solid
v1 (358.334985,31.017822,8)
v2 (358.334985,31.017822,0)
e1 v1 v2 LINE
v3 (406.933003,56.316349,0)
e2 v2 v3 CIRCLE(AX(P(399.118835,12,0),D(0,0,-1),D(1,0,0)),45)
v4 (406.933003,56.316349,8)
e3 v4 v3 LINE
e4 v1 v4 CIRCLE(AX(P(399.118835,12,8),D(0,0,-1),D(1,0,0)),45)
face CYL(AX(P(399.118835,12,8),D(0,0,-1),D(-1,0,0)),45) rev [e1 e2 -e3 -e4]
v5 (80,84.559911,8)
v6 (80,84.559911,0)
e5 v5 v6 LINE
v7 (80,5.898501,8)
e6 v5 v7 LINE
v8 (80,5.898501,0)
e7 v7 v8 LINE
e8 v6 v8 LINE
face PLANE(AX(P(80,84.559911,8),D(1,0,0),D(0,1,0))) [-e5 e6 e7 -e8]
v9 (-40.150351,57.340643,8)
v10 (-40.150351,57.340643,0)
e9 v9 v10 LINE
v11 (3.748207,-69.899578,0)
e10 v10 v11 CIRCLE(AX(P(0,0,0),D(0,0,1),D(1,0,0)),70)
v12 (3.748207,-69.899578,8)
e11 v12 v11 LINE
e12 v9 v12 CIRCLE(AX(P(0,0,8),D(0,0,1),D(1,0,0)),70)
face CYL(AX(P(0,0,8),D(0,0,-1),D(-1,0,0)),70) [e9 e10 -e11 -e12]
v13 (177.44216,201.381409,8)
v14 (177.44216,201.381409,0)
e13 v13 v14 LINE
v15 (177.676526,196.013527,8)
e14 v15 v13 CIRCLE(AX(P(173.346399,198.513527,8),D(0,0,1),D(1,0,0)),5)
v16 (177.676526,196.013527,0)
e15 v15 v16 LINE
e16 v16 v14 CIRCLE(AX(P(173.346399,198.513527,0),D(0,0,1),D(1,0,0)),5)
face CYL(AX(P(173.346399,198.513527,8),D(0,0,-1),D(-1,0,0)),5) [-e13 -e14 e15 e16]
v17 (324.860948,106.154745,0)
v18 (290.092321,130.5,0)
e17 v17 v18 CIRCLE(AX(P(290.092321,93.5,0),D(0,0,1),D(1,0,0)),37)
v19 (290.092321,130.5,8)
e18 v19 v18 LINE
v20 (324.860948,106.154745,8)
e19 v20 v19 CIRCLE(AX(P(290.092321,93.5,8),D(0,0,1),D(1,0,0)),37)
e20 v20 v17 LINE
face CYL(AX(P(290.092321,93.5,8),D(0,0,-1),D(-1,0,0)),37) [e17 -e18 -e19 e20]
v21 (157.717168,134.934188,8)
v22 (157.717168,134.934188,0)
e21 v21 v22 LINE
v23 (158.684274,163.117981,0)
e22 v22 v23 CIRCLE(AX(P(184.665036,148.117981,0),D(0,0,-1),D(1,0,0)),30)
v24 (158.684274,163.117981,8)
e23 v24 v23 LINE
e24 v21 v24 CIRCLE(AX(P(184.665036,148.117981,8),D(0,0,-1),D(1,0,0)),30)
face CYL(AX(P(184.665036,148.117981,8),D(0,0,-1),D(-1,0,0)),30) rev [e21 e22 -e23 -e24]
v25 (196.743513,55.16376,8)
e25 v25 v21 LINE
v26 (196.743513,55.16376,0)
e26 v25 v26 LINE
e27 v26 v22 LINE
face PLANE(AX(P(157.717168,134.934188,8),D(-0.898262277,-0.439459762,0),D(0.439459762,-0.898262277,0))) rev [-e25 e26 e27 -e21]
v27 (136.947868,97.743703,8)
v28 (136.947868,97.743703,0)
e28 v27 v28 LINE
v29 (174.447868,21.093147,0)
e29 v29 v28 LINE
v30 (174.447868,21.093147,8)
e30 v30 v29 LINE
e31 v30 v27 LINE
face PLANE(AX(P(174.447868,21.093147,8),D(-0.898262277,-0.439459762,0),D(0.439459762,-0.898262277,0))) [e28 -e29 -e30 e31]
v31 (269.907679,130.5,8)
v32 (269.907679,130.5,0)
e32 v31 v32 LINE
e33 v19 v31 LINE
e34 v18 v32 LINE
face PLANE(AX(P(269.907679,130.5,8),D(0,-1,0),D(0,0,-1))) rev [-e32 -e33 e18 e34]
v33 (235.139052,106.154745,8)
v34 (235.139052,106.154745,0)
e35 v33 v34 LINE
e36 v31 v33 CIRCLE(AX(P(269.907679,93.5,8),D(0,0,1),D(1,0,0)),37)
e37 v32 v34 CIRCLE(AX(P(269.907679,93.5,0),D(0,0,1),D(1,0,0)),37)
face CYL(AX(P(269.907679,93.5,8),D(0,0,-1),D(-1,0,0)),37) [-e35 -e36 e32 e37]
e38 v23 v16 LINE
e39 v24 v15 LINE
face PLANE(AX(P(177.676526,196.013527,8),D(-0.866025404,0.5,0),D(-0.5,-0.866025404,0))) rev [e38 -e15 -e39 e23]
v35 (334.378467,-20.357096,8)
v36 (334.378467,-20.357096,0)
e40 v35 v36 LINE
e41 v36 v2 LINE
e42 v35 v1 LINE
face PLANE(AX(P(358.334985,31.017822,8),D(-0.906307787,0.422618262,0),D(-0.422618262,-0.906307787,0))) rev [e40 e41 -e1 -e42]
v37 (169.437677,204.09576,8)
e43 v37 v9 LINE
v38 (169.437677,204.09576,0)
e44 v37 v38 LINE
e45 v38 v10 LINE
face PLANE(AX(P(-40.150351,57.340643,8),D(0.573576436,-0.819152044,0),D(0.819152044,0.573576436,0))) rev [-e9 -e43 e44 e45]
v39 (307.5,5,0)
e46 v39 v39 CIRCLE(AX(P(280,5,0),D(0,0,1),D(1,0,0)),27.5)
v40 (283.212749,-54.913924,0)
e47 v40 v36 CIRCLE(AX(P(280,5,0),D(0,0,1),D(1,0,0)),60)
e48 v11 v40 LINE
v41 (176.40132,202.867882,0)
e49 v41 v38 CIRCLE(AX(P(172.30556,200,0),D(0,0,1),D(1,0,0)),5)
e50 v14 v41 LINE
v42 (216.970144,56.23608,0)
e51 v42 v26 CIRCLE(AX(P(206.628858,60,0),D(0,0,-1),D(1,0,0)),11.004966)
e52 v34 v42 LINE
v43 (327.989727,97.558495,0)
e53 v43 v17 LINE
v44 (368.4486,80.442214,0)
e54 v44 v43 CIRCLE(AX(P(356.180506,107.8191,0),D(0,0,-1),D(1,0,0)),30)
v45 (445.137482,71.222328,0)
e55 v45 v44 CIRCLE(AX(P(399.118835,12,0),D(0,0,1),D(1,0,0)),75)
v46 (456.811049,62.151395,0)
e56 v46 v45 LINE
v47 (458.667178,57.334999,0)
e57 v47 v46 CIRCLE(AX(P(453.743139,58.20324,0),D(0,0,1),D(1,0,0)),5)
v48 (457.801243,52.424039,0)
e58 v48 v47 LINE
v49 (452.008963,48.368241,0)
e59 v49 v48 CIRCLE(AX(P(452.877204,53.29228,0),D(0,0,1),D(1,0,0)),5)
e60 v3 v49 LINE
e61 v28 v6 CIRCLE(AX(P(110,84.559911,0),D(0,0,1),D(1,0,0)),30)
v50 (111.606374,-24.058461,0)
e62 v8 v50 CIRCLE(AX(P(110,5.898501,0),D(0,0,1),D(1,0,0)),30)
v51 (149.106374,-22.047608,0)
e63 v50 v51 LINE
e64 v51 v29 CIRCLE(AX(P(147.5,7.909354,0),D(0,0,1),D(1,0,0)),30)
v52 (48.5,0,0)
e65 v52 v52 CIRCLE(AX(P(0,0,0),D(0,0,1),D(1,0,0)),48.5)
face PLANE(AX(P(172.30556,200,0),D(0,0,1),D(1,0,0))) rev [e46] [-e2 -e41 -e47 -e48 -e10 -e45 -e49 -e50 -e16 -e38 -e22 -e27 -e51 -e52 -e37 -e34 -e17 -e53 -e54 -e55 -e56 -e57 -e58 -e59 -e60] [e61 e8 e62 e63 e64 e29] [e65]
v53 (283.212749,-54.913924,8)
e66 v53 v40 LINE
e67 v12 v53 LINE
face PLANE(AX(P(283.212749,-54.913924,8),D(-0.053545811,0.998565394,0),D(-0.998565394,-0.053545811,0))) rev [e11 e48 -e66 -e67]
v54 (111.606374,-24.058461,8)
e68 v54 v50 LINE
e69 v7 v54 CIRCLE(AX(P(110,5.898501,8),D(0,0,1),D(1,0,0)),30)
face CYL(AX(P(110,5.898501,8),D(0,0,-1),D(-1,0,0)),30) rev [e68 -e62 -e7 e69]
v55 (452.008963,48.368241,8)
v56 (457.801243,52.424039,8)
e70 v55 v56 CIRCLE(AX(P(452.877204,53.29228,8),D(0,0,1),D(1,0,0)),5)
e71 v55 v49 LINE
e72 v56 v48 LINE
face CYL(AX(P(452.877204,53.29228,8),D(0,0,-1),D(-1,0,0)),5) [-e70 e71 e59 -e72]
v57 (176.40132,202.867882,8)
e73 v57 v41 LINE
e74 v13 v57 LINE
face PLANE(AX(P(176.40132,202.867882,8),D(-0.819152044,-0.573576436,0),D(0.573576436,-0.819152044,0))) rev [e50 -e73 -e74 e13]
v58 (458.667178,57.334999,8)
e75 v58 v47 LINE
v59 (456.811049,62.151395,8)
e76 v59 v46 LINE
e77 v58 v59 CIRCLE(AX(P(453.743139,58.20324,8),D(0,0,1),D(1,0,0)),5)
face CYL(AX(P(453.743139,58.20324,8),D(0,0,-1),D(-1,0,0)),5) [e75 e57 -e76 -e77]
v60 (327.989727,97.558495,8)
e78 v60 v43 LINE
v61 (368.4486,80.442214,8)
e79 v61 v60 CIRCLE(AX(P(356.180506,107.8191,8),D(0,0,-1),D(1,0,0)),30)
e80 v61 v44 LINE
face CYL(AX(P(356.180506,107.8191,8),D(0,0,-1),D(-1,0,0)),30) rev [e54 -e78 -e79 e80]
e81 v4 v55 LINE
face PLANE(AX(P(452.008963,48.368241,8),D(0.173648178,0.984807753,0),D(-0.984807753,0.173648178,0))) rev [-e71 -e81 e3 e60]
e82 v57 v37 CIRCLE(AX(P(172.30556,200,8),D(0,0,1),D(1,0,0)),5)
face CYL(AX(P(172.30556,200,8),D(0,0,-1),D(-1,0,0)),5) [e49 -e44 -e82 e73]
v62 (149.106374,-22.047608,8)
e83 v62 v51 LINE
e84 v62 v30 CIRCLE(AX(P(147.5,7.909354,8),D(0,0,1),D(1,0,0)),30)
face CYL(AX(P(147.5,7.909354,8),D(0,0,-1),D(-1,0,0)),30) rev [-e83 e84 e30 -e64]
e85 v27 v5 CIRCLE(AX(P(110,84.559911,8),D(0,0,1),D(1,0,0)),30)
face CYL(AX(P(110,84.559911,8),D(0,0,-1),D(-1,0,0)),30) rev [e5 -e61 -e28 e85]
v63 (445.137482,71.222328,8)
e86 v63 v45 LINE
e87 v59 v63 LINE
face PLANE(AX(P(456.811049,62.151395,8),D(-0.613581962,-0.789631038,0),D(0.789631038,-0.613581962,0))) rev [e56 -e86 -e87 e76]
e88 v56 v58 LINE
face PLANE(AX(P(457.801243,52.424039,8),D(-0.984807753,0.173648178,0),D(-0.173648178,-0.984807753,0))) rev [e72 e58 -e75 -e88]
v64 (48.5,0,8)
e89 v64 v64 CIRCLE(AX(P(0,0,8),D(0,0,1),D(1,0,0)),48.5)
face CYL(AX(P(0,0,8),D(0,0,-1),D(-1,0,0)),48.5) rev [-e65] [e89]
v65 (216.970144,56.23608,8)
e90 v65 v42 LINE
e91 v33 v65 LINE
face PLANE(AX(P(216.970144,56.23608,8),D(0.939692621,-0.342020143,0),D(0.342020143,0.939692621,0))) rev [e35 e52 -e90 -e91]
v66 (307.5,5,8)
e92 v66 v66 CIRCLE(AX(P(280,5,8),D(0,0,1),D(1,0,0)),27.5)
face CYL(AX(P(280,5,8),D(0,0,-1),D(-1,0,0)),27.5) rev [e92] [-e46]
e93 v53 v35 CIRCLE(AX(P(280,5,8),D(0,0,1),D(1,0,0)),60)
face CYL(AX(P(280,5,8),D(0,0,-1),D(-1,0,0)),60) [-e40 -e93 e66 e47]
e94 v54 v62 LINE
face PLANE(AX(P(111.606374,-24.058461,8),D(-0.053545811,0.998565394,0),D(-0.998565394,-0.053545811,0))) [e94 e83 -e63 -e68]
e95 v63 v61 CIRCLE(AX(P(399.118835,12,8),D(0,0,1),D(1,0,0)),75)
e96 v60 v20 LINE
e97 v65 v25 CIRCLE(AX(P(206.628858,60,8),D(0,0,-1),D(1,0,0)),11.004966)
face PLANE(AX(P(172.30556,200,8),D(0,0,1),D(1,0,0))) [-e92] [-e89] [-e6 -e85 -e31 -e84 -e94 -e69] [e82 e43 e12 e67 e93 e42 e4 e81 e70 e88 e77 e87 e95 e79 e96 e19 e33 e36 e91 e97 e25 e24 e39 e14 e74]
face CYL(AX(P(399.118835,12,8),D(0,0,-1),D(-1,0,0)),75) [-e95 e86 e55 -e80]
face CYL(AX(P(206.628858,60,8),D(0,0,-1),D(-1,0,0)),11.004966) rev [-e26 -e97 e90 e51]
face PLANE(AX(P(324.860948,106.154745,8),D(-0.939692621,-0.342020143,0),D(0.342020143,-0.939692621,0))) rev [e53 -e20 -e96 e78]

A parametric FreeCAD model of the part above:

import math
import FreeCAD as App
import Part
import Sketcher
from FreeCAD import Vector
Q = App.Units.Quantity

doc = App.newDocument("Part")
body = doc.addObject("PartDesign::Body", "Body")

# Sketch on XY plane
sketch1 = doc.addObject("Sketcher::SketchObject", "Sketch")
body.addObject(sketch1)
sketch1.AttachmentSupport = (doc.XY_Plane, [""])
sketch1.MapMode = "FlatFace"
sketch1.addGeometry([
    Part.LineSegment(Vector(456.8, 62.2, 0), Vector(445.1, 71.2, 0)),  # 0
    Part.ArcOfCircle(Part.Circle(Vector(399.1, 12, 0), Vector(0, 0, 1), 75), math.radians(52), math.radians(114)),  # 1
    Part.ArcOfCircle(Part.Circle(Vector(356.2, 107.8, 0), Vector(0, 0, 1), 30), math.radians(-160), math.radians(-66)),  # 2
    Part.LineSegment(Vector(328, 97.6, 0), Vector(324.9, 106.2, 0)),  # 3
    Part.ArcOfCircle(Part.Circle(Vector(290.1, 93.5, 0), Vector(0, 0, 1), 37), math.radians(20), math.radians(90)),  # 4
    Part.LineSegment(Vector(290.1, 130.5, 0), Vector(269.9, 130.5, 0)),  # 5
    Part.ArcOfCircle(Part.Circle(Vector(269.9, 93.5, 0), Vector(0, 0, 1), 37), math.radians(90), math.radians(160)),  # 6
    Part.LineSegment(Vector(235.1, 106.2, 0), Vector(217, 56.2, 0)),  # 7
    Part.ArcOfCircle(Part.Circle(Vector(206.6, 60, 0), Vector(0, 0, 1), 11), math.radians(-154), math.radians(-20)),  # 8
    Part.LineSegment(Vector(196.7, 55.2, 0), Vector(157.7, 134.9, 0)),  # 9
    Part.ArcOfCircle(Part.Circle(Vector(184.7, 148.1, 0), Vector(0, 0, 1), 30), math.radians(150), math.radians(206)),  # 10
    Part.LineSegment(Vector(158.7, 163.1, 0), Vector(177.7, 196, 0)),  # 11
    Part.ArcOfCircle(Part.Circle(Vector(173.3, 198.5, 0), Vector(0, 0, 1), 5), math.radians(-30), math.radians(35)),  # 12
    Part.LineSegment(Vector(177.4, 201.4, 0), Vector(176.4, 202.9, 0)),  # 13
    Part.ArcOfCircle(Part.Circle(Vector(172.3, 200, 0), Vector(0, 0, 1), 5), math.radians(35), math.radians(125)),  # 14
    Part.LineSegment(Vector(169.4, 204.1, 0), Vector(-40.2, 57.3, 0)),  # 15
    Part.ArcOfCircle(Part.Circle(Vector(0, 0, 0), Vector(0, 0, 1), 70), math.radians(125), math.radians(273)),  # 16
    Part.LineSegment(Vector(3.7, -69.9, 0), Vector(283.2, -54.9, 0)),  # 17
    Part.ArcOfCircle(Part.Circle(Vector(280, 5, 0), Vector(0, 0, 1), 60), math.radians(-87), math.radians(-25)),  # 18
    Part.LineSegment(Vector(334.4, -20.4, 0), Vector(358.3, 31, 0)),  # 19
    Part.ArcOfCircle(Part.Circle(Vector(399.1, 12, 0), Vector(0, 0, 1), 45), math.radians(80), math.radians(155)),  # 20
    Part.LineSegment(Vector(406.9, 56.3, 0), Vector(452, 48.4, 0)),  # 21
    Part.ArcOfCircle(Part.Circle(Vector(452.9, 53.3, 0), Vector(0, 0, 1), 5), math.radians(-100), math.radians(-10)),  # 22
    Part.LineSegment(Vector(457.8, 52.4, 0), Vector(458.7, 57.3, 0)),  # 23
    Part.ArcOfCircle(Part.Circle(Vector(453.7, 58.2, 0), Vector(0, 0, 1), 5), math.radians(-10), math.radians(52)),  # 24
    Part.Circle(Vector(0, 0, 0), Vector(0, 0, 1), 48.5),  # 25
    Part.Circle(Vector(280, 5, 0), Vector(0, 0, 1), 27.5),  # 26
    Part.LineSegment(Vector(149.1, -22, 0), Vector(111.6, -24.1, 0)),  # 27
    Part.ArcOfCircle(Part.Circle(Vector(110, 5.9, 0), Vector(0, 0, 1), 30), math.radians(180), math.radians(273)),  # 28
    Part.LineSegment(Vector(80, 5.9, 0), Vector(80, 84.6, 0)),  # 29
    Part.ArcOfCircle(Part.Circle(Vector(110, 84.6, 0), Vector(0, 0, 1), 30), math.radians(26), math.radians(180)),  # 30
    Part.LineSegment(Vector(136.9, 97.7, 0), Vector(174.4, 21.1, 0)),  # 31
    Part.ArcOfCircle(Part.Circle(Vector(147.5, 7.9, 0), Vector(0, 0, 1), 30), math.radians(-87), math.radians(26)),  # 32
], False)
sketch1.addConstraint([
    Sketcher.Constraint("Tangent", 0, 2, 1, 1),
    Sketcher.Constraint("Tangent", 1, 2, 2, 2),
    Sketcher.Constraint("Tangent", 2, 1, 3, 1),
    Sketcher.Constraint("Tangent", 3, 2, 4, 1),
    Sketcher.Constraint("Tangent", 4, 2, 5, 1),
    Sketcher.Constraint("Tangent", 5, 2, 6, 1),
    Sketcher.Constraint("Tangent", 6, 2, 7, 1),
    Sketcher.Constraint("Tangent", 7, 2, 8, 2),
    Sketcher.Constraint("Tangent", 8, 1, 9, 1),
    Sketcher.Constraint("Tangent", 9, 2, 10, 2),
    Sketcher.Constraint("Tangent", 10, 1, 11, 1),
    Sketcher.Constraint("Tangent", 11, 2, 12, 1),
    Sketcher.Constraint("Tangent", 12, 2, 13, 1),
    Sketcher.Constraint("Tangent", 13, 2, 14, 1),
    Sketcher.Constraint("Tangent", 14, 2, 15, 1),
    Sketcher.Constraint("Tangent", 15, 2, 16, 1),
    Sketcher.Constraint("Tangent", 16, 2, 17, 1),
    Sketcher.Constraint("Tangent", 17, 2, 18, 1),
    Sketcher.Constraint("Tangent", 18, 2, 19, 1),
    Sketcher.Constraint("Tangent", 19, 2, 20, 2),
    Sketcher.Constraint("Tangent", 20, 1, 21, 1),
    Sketcher.Constraint("Tangent", 21, 2, 22, 1),
    Sketcher.Constraint("Tangent", 22, 2, 23, 1),
    Sketcher.Constraint("Tangent", 23, 2, 24, 1),
    Sketcher.Constraint("Tangent", 24, 2, 0, 1),
    Sketcher.Constraint("Tangent", 27, 2, 28, 2),
    Sketcher.Constraint("Tangent", 28, 1, 29, 1),
    Sketcher.Constraint("Tangent", 29, 2, 30, 2),
    Sketcher.Constraint("Tangent", 30, 1, 31, 1),
    Sketcher.Constraint("Tangent", 31, 2, 32, 2),
    Sketcher.Constraint("Tangent", 32, 1, 27, 1),
    Sketcher.Constraint("Horizontal", 5),
    Sketcher.Constraint("Vertical", 29),
    Sketcher.Constraint("Coincident", 16, 3, -1, 1),
    Sketcher.Constraint("Coincident", 25, 3, -1, 1),
    Sketcher.Constraint("Coincident", 20, 3, 1, 3),
    Sketcher.Constraint("Coincident", 26, 3, 18, 3),
    Sketcher.Constraint("Equal", 4, 6),
    Sketcher.Constraint("Equal", 2, 10),
    Sketcher.Constraint("Equal", 12, 14),
    Sketcher.Constraint("Equal", 14, 22),
    Sketcher.Constraint("Equal", 22, 24),
    Sketcher.Constraint("Equal", 10, 28),
    Sketcher.Constraint("Equal", 28, 30),
    Sketcher.Constraint("Equal", 30, 32),
    Sketcher.Constraint("Perpendicular", 13, 15),
    Sketcher.Constraint("Perpendicular", 21, 23),
    Sketcher.Constraint("Parallel", 17, 27),
    Sketcher.Constraint("Parallel", 9, 31),
    Sketcher.Constraint("Horizontal", 3, 2, 6, 2),
    Sketcher.Constraint("Diameter", 25, Q("97 mm")),
    Sketcher.Constraint("Diameter", 26, Q("55 mm")),
    Sketcher.Constraint("Radius", 1, Q("75 mm")),
    Sketcher.Constraint("Radius", 2, Q("30 mm")),
    Sketcher.Constraint("Radius", 4, Q("37 mm")),
    Sketcher.Constraint("Radius", 12, Q("5 mm")),
    Sketcher.Constraint("Radius", 16, Q("70 mm")),
    Sketcher.Constraint("Radius", 18, Q("60 mm")),
    Sketcher.Constraint("Radius", 20, Q("45 mm")),
    Sketcher.Constraint("Angle", 3, Q("110 deg")),
    Sketcher.Constraint("Angle", 11, Q("60 deg")),
    Sketcher.Constraint("Angle", 13, Q("125 deg")),
    Sketcher.Constraint("Angle", 19, Q("65 deg")),
    Sketcher.Constraint("Angle", 21, Q("-10 deg")),
    Sketcher.Constraint("DistanceY", -1, 1, 1, 3, Q("12 mm")),
    Sketcher.Constraint("DistanceY", -1, 1, 8, 3, Q("60 mm")),
    Sketcher.Constraint("DistanceY", -1, 1, 14, 3, Q("200 mm")),
    Sketcher.Constraint("DistanceX", -1, 1, 18, 3, Q("280 mm")),
    Sketcher.Constraint("DistanceY", -1, 1, 18, 3, Q("5 mm")),
    Sketcher.Constraint("DistanceX", -1, 1, 28, 3, Q("110 mm")),
    Sketcher.Constraint("DistanceY", -1, 1, 4, 3, Q("93.5 mm")),
    Sketcher.Constraint("DistanceX", -1, 1, 32, 3, Q("147.5 mm")),
    Sketcher.Constraint("DistanceY", -1, 1, 23, 2, Q("57.334999 mm")),
    Sketcher.Constraint("Radius", 8, Q("11.004966 mm")),
    Sketcher.Constraint("DistanceY", 21, 2, 24, 3, Q("9.834999 mm")),
    Sketcher.Constraint("DistanceY", 29, 1, 29, 2, Q("78.661409 mm")),
    Sketcher.Constraint("DistanceY", -1, 1, 2, 3, Q("107.8191 mm")),
    Sketcher.Constraint("DistanceX", -1, 1, 12, 3, Q("173.346399 mm")),
    Sketcher.Constraint("DistanceY", -1, 1, 28, 3, Q("5.898501 mm")),
    Sketcher.Constraint("DistanceX", 10, 3, 1, 3, Q("214.453799 mm")),
])
pad1 = doc.addObject("PartDesign::Pad", "Pad")
body.addObject(pad1)
pad1.Profile = sketch1
pad1.Length = 8

doc.recompute()
